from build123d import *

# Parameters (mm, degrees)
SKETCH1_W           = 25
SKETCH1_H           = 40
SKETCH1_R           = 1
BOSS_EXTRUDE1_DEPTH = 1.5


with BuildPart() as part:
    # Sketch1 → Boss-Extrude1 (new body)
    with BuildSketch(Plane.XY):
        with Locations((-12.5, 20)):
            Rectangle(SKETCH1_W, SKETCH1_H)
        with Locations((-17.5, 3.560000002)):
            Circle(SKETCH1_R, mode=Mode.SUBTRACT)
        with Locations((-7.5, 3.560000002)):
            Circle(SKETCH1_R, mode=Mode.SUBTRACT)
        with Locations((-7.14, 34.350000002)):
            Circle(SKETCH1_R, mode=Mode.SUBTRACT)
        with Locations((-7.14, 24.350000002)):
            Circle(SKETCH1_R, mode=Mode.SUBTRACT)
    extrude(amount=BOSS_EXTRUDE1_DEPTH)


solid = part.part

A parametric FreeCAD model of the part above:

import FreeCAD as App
import Part
import Sketcher
Q = App.Units.Quantity

doc = App.newDocument("Part")
body = doc.addObject("PartDesign::Body", "Body")

sketch1 = body.newObject("Sketcher::SketchObject", "Sketch")
sketch1.AttachmentSupport = (doc.getObject("XY_Plane"), [""])
sketch1.MapMode = "FlatFace"
sketch1.addGeometry([
    Part.LineSegment(App.Vector(-25, 40, 0), App.Vector(-25, 0, 0)),
    Part.LineSegment(App.Vector(-25, 0, 0), App.Vector(0, 0, 0)),
    Part.LineSegment(App.Vector(0, 0, 0), App.Vector(0, 40, 0)),
    Part.LineSegment(App.Vector(0, 40, 0), App.Vector(-25, 40, 0)),
    Part.Circle(App.Vector(-17.5, 3.56, 0), App.Vector(0, 0, 1), 1),
    Part.Circle(App.Vector(-7.5, 3.56, 0), App.Vector(0, 0, 1), 1),
    Part.Circle(App.Vector(-7.14, 24.35, 0), App.Vector(0, 0, 1), 1),
    Part.Circle(App.Vector(-7.14, 34.35, 0), App.Vector(0, 0, 1), 1),
], False)
sketch1.addConstraint([
    Sketcher.Constraint("Coincident", 0, 2, 1, 1),
    Sketcher.Constraint("Coincident", 1, 2, 2, 1),
    Sketcher.Constraint("Coincident", 2, 2, 3, 1),
    Sketcher.Constraint("Coincident", 3, 2, 0, 1),
    Sketcher.Constraint("Vertical", 0),
    Sketcher.Constraint("Horizontal", 1),
    Sketcher.Constraint("Vertical", 2),
    Sketcher.Constraint("Horizontal", 3),
    Sketcher.Constraint("Coincident", 1, 2, -1, 1),
    Sketcher.Constraint("Equal", 4, 5),
    Sketcher.Constraint("Equal", 5, 6),
    Sketcher.Constraint("Equal", 6, 7),
    Sketcher.Constraint("Horizontal", 4, 3, 5, 3),
    Sketcher.Constraint("Vertical", 6, 3, 7, 3),
    Sketcher.Constraint("Diameter", 4, Q("2 mm")),
    Sketcher.Constraint("DistanceX", 1, 1, 1, 2, Q("25 mm")),
    Sketcher.Constraint("DistanceY", 0, 2, 0, 1, Q("40 mm")),
    Sketcher.Constraint("DistanceX", 4, 3, 5, 3, Q("10 mm")),
    Sketcher.Constraint("DistanceY", 6, 3, 7, 3, Q("10 mm")),
    Sketcher.Constraint("DistanceX", 4, 3, -1, 1, Q("17.5 mm")),
    Sketcher.Constraint("DistanceY", -1, 1, 4, 3, Q("3.56 mm")),
    Sketcher.Constraint("DistanceX", 6, 3, -1, 1, Q("7.14 mm")),
    Sketcher.Constraint("DistanceY", -1, 1, 6, 3, Q("24.35 mm")),
])
pad1 = body.newObject("PartDesign::Pad", "Pad")
pad1.Profile = sketch1
pad1.Length = 1.5

doc.recompute()
